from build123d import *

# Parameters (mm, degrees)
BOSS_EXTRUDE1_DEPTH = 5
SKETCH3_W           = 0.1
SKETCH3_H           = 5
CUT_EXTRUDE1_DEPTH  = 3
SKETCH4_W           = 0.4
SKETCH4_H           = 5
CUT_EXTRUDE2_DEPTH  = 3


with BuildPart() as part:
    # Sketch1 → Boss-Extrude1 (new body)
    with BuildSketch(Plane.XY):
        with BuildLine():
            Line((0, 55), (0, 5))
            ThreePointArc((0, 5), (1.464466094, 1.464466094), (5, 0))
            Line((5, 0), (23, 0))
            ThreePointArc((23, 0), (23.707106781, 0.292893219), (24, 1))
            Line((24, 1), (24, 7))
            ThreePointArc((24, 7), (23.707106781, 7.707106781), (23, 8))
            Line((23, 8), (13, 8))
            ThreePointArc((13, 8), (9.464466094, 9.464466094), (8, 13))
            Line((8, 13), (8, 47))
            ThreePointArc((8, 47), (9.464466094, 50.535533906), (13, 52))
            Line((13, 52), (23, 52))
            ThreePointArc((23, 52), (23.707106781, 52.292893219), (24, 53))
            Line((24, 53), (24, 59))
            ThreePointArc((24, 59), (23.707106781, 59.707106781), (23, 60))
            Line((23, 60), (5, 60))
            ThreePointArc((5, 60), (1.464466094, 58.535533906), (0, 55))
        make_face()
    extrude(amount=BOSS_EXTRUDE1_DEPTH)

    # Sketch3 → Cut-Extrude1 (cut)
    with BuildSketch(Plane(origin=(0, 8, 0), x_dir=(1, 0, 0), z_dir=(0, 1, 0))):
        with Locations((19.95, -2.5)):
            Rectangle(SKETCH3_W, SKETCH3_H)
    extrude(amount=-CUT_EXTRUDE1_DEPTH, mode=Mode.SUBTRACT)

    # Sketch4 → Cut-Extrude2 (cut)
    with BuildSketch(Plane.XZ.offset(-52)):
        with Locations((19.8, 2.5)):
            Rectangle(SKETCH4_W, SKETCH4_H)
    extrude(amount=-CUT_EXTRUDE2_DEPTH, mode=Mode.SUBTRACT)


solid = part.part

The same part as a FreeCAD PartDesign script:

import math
import FreeCAD as App
import Part
import Sketcher

doc = App.newDocument("Part")
body = doc.addObject("PartDesign::Body", "Body")

# Sketch on XY plane
sketch1 = body.newObject("Sketcher::SketchObject", "Sketch")
sketch1.AttachmentSupport = (doc.getObject("XY_Plane"), [""])
sketch1.MapMode = "FlatFace"
sketch1.addGeometry(Part.LineSegment(App.Vector(0, 55, 0), App.Vector(0, 5, 0)), False)
sketch1.addGeometry(Part.ArcOfCircle(Part.Circle(App.Vector(5, 5, 0), App.Vector(0, 0, 1), 5), math.radians(180), math.radians(270)), False)
sketch1.addGeometry(Part.LineSegment(App.Vector(5, 0, 0), App.Vector(23, 0, 0)), False)
sketch1.addGeometry(Part.ArcOfCircle(Part.Circle(App.Vector(23, 1, 0), App.Vector(0, 0, 1), 1), math.radians(-90), math.radians(0)), False)
sketch1.addGeometry(Part.LineSegment(App.Vector(24, 1, 0), App.Vector(24, 7, 0)), False)
sketch1.addGeometry(Part.ArcOfCircle(Part.Circle(App.Vector(23, 7, 0), App.Vector(0, 0, 1), 1), math.radians(0), math.radians(90)), False)
sketch1.addGeometry(Part.LineSegment(App.Vector(23, 8, 0), App.Vector(13, 8, 0)), False)
sketch1.addGeometry(Part.ArcOfCircle(Part.Circle(App.Vector(13, 13, 0), App.Vector(0, 0, 1), 5), math.radians(180), math.radians(270)), False)
sketch1.addGeometry(Part.LineSegment(App.Vector(8, 13, 0), App.Vector(8, 47, 0)), False)
sketch1.addGeometry(Part.ArcOfCircle(Part.Circle(App.Vector(13, 47, 0), App.Vector(0, 0, 1), 5), math.radians(90), math.radians(180)), False)
sketch1.addGeometry(Part.LineSegment(App.Vector(13, 52, 0), App.Vector(23, 52, 0)), False)
sketch1.addGeometry(Part.ArcOfCircle(Part.Circle(App.Vector(23, 53, 0), App.Vector(0, 0, 1), 1), math.radians(-90), math.radians(0)), False)
sketch1.addGeometry(Part.LineSegment(App.Vector(24, 53, 0), App.Vector(24, 59, 0)), False)
sketch1.addGeometry(Part.ArcOfCircle(Part.Circle(App.Vector(23, 59, 0), App.Vector(0, 0, 1), 1), math.radians(0), math.radians(90)), False)
sketch1.addGeometry(Part.LineSegment(App.Vector(23, 60, 0), App.Vector(5, 60, 0)), False)
sketch1.addGeometry(Part.ArcOfCircle(Part.Circle(App.Vector(5, 55, 0), App.Vector(0, 0, 1), 5), math.radians(90), math.radians(180)), False)
sketch1.addConstraint(Sketcher.Constraint("Tangent", 0, 2, 1, 1))
sketch1.addConstraint(Sketcher.Constraint("Tangent", 1, 2, 2, 1))
sketch1.addConstraint(Sketcher.Constraint("Tangent", 2, 2, 3, 1))
sketch1.addConstraint(Sketcher.Constraint("Tangent", 3, 2, 4, 1))
sketch1.addConstraint(Sketcher.Constraint("Tangent", 4, 2, 5, 1))
sketch1.addConstraint(Sketcher.Constraint("Tangent", 5, 2, 6, 1))
sketch1.addConstraint(Sketcher.Constraint("Tangent", 6, 2, 7, 2))
sketch1.addConstraint(Sketcher.Constraint("Tangent", 7, 1, 8, 1))
sketch1.addConstraint(Sketcher.Constraint("Tangent", 8, 2, 9, 2))
sketch1.addConstraint(Sketcher.Constraint("Tangent", 9, 1, 10, 1))
sketch1.addConstraint(Sketcher.Constraint("Tangent", 10, 2, 11, 1))
sketch1.addConstraint(Sketcher.Constraint("Tangent", 11, 2, 12, 1))
sketch1.addConstraint(Sketcher.Constraint("Tangent", 12, 2, 13, 1))
sketch1.addConstraint(Sketcher.Constraint("Tangent", 13, 2, 14, 1))
sketch1.addConstraint(Sketcher.Constraint("Tangent", 14, 2, 15, 1))
sketch1.addConstraint(Sketcher.Constraint("Tangent", 15, 2, 0, 1))
sketch1.addConstraint(Sketcher.Constraint("Vertical", 0))
sketch1.addConstraint(Sketcher.Constraint("Horizontal", 2))
sketch1.addConstraint(Sketcher.Constraint("Vertical", 4))
sketch1.addConstraint(Sketcher.Constraint("Horizontal", 6))
sketch1.addConstraint(Sketcher.Constraint("Vertical", 8))
sketch1.addConstraint(Sketcher.Constraint("Horizontal", 10))
sketch1.addConstraint(Sketcher.Constraint("Vertical", 12))
sketch1.addConstraint(Sketcher.Constraint("Horizontal", 14))
sketch1.addConstraint(Sketcher.Constraint("Equal", 3, 5))
sketch1.addConstraint(Sketcher.Constraint("Equal", 1, 7))
sketch1.addConstraint(Sketcher.Constraint("Equal", 7, 9))
sketch1.addConstraint(Sketcher.Constraint("Equal", 5, 11))
sketch1.addConstraint(Sketcher.Constraint("Equal", 11, 13))
sketch1.addConstraint(Sketcher.Constraint("Equal", 9, 15))
sketch1.addConstraint(Sketcher.Constraint("PointOnObject", 0, 2, -2))
sketch1.addConstraint(Sketcher.Constraint("PointOnObject", 1, 2, -1))
sketch1.addConstraint(Sketcher.Constraint("Vertical", 5, 3, 11, 3))
sketch1.addConstraint(Sketcher.Constraint("Equal", 4, 12))
sketch1.addConstraint(Sketcher.Constraint("Radius", 1, 5.0))
sketch1.addConstraint(Sketcher.Constraint("Radius", 3, 1.0))
sketch1.addConstraint(Sketcher.Constraint("DistanceX", 2, 1, 2, 2, 18.0))
sketch1.addConstraint(Sketcher.Constraint("DistanceX", 6, 2, 6, 1, 10.0))
sketch1.addConstraint(Sketcher.Constraint("DistanceY", 0, 2, 0, 1, 50.0))
sketch1.addConstraint(Sketcher.Constraint("DistanceY", 4, 1, 4, 2, 6.0))
pad1 = body.newObject("PartDesign::Pad", "Pad")
pad1.Profile = sketch1
pad1.Length = 5

# Sketch on XZ plane
sketch2 = body.newObject("Sketcher::SketchObject", "Sketch001")
sketch2.AttachmentSupport = (doc.getObject("XZ_Plane"), [""])
sketch2.MapMode = "FlatFace"
sketch2.AttachmentOffset = App.Placement(App.Vector(0, 0, -8), App.Rotation())
sketch2.addGeometry(Part.LineSegment(App.Vector(19.9, 0, 0), App.Vector(19.9, 5, 0)), False)
sketch2.addGeometry(Part.LineSegment(App.Vector(19.9, 5, 0), App.Vector(20, 5, 0)), False)
sketch2.addGeometry(Part.LineSegment(App.Vector(20, 5, 0), App.Vector(20, 0, 0)), False)
sketch2.addGeometry(Part.LineSegment(App.Vector(20, 0, 0), App.Vector(19.9, 0, 0)), False)
sketch2.addConstraint(Sketcher.Constraint("Coincident", 0, 2, 1, 1))
sketch2.addConstraint(Sketcher.Constraint("Coincident", 1, 2, 2, 1))
sketch2.addConstraint(Sketcher.Constraint("Coincident", 2, 2, 3, 1))
sketch2.addConstraint(Sketcher.Constraint("Coincident", 3, 2, 0, 1))
sketch2.addConstraint(Sketcher.Constraint("Vertical", 0))
sketch2.addConstraint(Sketcher.Constraint("Horizontal", 1))
sketch2.addConstraint(Sketcher.Constraint("Vertical", 2))
sketch2.addConstraint(Sketcher.Constraint("Horizontal", 3))
sketch2.addConstraint(Sketcher.Constraint("PointOnObject", 2, 2, -1))
sketch2.addConstraint(Sketcher.Constraint("DistanceY", 0, 1, 0, 2, 5.0))
sketch2.addConstraint(Sketcher.Constraint("DistanceX", 1, 1, 1, 2, 0.1))
sketch2.addConstraint(Sketcher.Constraint("DistanceX", -1, 1, 1, 2, 20.0))
pocket1 = body.newObject("PartDesign::Pocket", "Pocket")
pocket1.Profile = sketch2
pocket1.Length = 3
pocket1.Reversed = True

# Sketch on XZ plane
sketch3 = body.newObject("Sketcher::SketchObject", "Sketch002")
sketch3.AttachmentSupport = (doc.getObject("XZ_Plane"), [""])
sketch3.MapMode = "FlatFace"
sketch3.AttachmentOffset = App.Placement(App.Vector(0, 0, -52), App.Rotation())
sketch3.addGeometry(Part.LineSegment(App.Vector(19.6, 5, 0), App.Vector(19.6, 0, 0)), False)
sketch3.addGeometry(Part.LineSegment(App.Vector(19.6, 0, 0), App.Vector(20, 0, 0)), False)
sketch3.addGeometry(Part.LineSegment(App.Vector(20, 0, 0), App.Vector(20, 5, 0)), False)
sketch3.addGeometry(Part.LineSegment(App.Vector(20, 5, 0), App.Vector(19.6, 5, 0)), False)
sketch3.addConstraint(Sketcher.Constraint("Coincident", 0, 2, 1, 1))
sketch3.addConstraint(Sketcher.Constraint("Coincident", 1, 2, 2, 1))
sketch3.addConstraint(Sketcher.Constraint("Coincident", 2, 2, 3, 1))
sketch3.addConstraint(Sketcher.Constraint("Coincident", 3, 2, 0, 1))
sketch3.addConstraint(Sketcher.Constraint("Vertical", 0))
sketch3.addConstraint(Sketcher.Constraint("Horizontal", 1))
sketch3.addConstraint(Sketcher.Constraint("Vertical", 2))
sketch3.addConstraint(Sketcher.Constraint("Horizontal", 3))
sketch3.addConstraint(Sketcher.Constraint("PointOnObject", 0, 2, -1))
sketch3.addConstraint(Sketcher.Constraint("DistanceY", 0, 2, 0, 1, 5.0))
sketch3.addConstraint(Sketcher.Constraint("DistanceX", 1, 1, 1, 2, 0.4))
sketch3.addConstraint(Sketcher.Constraint("DistanceX", -1, 1, 1, 2, 20.0))
pocket2 = body.newObject("PartDesign::Pocket", "Pocket001")
pocket2.Profile = sketch3
pocket2.Length = 3

doc.recompute()
